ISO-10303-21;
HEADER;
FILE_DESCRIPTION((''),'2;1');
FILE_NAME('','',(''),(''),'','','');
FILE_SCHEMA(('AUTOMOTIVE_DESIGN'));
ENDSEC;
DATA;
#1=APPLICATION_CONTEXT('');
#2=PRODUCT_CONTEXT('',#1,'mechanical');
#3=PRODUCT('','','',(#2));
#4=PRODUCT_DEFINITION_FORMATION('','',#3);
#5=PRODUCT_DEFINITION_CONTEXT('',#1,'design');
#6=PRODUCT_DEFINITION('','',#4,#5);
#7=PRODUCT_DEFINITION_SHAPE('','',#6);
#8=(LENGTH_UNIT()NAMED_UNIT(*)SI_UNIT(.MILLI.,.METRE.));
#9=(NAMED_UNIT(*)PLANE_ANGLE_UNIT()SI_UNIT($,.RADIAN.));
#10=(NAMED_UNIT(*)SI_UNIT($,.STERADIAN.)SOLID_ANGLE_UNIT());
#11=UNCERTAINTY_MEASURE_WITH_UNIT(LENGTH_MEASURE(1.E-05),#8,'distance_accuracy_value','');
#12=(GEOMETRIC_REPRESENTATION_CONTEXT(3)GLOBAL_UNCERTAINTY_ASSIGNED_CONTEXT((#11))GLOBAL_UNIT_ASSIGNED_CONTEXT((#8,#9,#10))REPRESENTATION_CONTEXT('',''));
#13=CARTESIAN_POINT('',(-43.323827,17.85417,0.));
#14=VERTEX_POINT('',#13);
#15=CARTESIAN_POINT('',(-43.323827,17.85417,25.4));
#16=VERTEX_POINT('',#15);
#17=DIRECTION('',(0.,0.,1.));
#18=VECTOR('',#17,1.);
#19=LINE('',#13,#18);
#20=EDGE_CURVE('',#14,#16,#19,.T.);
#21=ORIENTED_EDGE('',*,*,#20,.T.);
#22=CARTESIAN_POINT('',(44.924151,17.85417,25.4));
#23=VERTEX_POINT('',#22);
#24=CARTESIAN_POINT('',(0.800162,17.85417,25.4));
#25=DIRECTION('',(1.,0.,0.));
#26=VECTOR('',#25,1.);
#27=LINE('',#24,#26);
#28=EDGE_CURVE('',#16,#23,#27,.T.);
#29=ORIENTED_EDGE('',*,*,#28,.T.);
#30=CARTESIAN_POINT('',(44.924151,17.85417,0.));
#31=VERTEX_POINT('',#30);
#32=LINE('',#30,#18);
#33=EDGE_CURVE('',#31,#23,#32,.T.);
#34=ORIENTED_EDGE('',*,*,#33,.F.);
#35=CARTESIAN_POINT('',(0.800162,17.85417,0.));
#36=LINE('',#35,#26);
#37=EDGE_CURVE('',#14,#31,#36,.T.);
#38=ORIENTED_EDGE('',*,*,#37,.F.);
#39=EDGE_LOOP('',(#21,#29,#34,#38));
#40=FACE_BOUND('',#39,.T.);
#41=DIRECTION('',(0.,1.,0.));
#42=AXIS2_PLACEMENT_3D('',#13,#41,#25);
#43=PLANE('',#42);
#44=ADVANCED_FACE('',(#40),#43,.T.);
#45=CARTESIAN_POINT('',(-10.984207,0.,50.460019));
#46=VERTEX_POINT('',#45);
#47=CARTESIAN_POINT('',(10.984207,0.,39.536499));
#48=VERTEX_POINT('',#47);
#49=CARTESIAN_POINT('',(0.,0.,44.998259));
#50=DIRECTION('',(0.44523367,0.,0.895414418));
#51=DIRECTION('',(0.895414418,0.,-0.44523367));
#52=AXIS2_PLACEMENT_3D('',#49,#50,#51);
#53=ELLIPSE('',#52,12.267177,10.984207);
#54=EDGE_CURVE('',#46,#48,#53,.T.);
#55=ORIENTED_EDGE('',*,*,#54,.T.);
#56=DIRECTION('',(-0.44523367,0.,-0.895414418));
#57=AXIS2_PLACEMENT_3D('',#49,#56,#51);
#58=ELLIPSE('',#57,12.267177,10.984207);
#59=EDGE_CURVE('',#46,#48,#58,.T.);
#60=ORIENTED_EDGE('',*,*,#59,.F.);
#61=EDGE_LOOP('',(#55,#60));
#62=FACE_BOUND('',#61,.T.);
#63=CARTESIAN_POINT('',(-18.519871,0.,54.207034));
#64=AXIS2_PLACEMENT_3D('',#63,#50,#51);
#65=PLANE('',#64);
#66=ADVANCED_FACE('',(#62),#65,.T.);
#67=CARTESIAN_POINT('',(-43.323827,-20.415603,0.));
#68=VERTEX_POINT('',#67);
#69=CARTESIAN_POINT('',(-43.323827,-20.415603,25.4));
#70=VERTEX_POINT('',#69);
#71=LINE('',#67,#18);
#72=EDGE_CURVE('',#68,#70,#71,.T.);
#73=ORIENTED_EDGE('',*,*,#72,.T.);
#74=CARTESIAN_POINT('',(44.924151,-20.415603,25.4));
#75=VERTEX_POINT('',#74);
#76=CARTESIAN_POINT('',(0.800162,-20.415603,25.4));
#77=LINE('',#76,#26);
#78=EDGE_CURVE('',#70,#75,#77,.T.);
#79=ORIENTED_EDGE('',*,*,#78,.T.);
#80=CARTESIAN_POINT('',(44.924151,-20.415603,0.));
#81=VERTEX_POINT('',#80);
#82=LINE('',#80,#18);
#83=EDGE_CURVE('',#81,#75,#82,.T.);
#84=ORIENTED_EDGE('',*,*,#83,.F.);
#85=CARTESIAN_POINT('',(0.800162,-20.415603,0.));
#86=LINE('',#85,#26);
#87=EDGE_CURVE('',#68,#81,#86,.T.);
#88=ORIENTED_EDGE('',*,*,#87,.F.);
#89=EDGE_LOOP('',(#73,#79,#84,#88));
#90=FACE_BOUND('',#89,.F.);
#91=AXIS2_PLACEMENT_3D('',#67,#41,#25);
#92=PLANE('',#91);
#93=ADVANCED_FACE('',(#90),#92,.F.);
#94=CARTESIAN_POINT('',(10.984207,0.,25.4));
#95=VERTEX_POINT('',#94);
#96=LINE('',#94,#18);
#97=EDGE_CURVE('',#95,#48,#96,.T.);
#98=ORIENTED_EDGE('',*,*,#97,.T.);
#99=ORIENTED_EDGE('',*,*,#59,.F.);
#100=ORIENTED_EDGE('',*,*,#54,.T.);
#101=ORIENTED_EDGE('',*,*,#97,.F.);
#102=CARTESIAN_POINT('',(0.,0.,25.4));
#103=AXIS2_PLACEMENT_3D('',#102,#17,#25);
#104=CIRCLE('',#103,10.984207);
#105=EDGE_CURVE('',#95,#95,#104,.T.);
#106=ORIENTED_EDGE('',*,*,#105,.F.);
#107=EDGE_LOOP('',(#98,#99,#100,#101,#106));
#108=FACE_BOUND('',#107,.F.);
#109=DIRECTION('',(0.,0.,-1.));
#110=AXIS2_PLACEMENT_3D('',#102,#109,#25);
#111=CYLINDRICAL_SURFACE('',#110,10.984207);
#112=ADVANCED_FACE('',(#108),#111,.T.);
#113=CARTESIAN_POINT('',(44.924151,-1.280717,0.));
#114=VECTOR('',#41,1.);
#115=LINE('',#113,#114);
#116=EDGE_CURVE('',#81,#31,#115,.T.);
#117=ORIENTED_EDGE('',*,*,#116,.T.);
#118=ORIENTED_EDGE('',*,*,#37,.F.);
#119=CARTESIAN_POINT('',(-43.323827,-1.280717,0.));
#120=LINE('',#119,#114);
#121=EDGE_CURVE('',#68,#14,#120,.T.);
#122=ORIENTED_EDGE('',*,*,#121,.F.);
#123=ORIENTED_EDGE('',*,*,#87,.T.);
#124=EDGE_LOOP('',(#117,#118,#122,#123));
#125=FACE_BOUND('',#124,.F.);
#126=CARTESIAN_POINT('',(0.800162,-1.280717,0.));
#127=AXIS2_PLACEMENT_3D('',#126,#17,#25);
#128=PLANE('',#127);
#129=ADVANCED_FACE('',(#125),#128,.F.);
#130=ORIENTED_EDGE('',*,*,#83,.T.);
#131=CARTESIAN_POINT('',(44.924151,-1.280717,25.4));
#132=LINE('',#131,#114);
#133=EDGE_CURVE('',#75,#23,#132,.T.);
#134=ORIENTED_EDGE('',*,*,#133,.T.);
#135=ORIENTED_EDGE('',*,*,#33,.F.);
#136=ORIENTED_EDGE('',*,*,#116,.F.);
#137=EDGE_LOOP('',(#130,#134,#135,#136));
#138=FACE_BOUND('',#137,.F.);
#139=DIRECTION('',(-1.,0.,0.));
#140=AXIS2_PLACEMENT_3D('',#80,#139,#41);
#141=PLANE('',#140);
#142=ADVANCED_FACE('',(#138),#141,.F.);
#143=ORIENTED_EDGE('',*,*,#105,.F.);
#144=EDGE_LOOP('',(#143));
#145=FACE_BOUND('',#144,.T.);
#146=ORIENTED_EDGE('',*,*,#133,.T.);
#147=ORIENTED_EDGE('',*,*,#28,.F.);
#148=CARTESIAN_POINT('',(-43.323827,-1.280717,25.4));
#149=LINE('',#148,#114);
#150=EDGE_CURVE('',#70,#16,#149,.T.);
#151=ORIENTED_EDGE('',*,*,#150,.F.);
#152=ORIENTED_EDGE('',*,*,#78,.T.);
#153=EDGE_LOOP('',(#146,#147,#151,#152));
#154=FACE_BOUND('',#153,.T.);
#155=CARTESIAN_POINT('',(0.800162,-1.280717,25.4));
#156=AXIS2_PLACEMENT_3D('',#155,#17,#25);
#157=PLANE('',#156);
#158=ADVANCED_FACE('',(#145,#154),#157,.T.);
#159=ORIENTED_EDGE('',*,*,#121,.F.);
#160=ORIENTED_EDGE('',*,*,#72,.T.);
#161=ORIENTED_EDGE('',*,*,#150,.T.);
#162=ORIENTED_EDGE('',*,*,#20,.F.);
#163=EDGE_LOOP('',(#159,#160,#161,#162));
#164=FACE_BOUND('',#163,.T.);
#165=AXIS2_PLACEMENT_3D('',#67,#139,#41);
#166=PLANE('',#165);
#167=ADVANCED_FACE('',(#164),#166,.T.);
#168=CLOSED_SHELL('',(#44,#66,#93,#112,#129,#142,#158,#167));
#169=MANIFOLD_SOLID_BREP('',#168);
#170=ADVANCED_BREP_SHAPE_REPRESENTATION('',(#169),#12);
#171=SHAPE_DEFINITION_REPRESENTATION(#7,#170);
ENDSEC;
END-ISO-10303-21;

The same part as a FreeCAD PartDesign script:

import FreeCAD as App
import Part
import Sketcher

V = App.Vector
Q = App.Units.Quantity

doc = App.newDocument("Part")
body = doc.addObject("PartDesign::Body", "Body")

# Sketch on XY plane
sketch1 = body.newObject("Sketcher::SketchObject", "Sketch")
sketch1.AttachmentSupport = (doc.getObject("XY_Plane"), [""])
sketch1.MapMode = "FlatFace"
sketch1.addGeometry(Part.LineSegment(V(-43, 18, 0), V(-43, -20, 0)), False)
sketch1.addGeometry(Part.LineSegment(V(-43, -20, 0), V(45, -20, 0)), False)
sketch1.addGeometry(Part.LineSegment(V(45, -20, 0), V(45, 18, 0)), False)
sketch1.addGeometry(Part.LineSegment(V(45, 18, 0), V(-43, 18, 0)), False)
sketch1.addConstraint(Sketcher.Constraint("Coincident", 0, 2, 1, 1))
sketch1.addConstraint(Sketcher.Constraint("Coincident", 1, 2, 2, 1))
sketch1.addConstraint(Sketcher.Constraint("Coincident", 2, 2, 3, 1))
sketch1.addConstraint(Sketcher.Constraint("Coincident", 3, 2, 0, 1))
sketch1.addConstraint(Sketcher.Constraint("Vertical", 0))
sketch1.addConstraint(Sketcher.Constraint("Horizontal", 1))
sketch1.addConstraint(Sketcher.Constraint("Vertical", 2))
sketch1.addConstraint(Sketcher.Constraint("Horizontal", 3))
sketch1.addConstraint(Sketcher.Constraint("DistanceX", 1, 1, 1, 2, Q("88.247977 mm")))
sketch1.addConstraint(Sketcher.Constraint("DistanceY", 0, 2, 0, 1, Q("38.269773 mm")))
sketch1.addConstraint(Sketcher.Constraint("DistanceX", -1, 1, 1, 2, Q("44.924151 mm")))
sketch1.addConstraint(Sketcher.Constraint("DistanceY", -1, 1, 2, 2, Q("17.85417 mm")))
pad1 = body.newObject("PartDesign::Pad", "Pad")
pad1.Profile = sketch1
pad1.Length = Q("1 in")

# Sketch on XY plane
sketch2 = body.newObject("Sketcher::SketchObject", "Sketch001")
sketch2.AttachmentSupport = (doc.getObject("XY_Plane"), [""])
sketch2.MapMode = "FlatFace"
sketch2.AttachmentOffset = App.Placement(V(0, 0, 1 * 25.4), App.Rotation())
sketch2.addGeometry(Part.Circle(V(0, 0, 0), V(0, 0, 1), 11), False)
sketch2.addConstraint(Sketcher.Constraint("Coincident", 0, 3, -1, 1))
sketch2.addConstraint(Sketcher.Constraint("Diameter", 0, Q("21.968414 mm")))
pad2 = body.newObject("PartDesign::Pad", "Pad001")
pad2.Profile = sketch2
pad2.Length = Q("1 in")

# Sketch on XZ plane
sketch3 = body.newObject("Sketcher::SketchObject", "Sketch002")
sketch3.AttachmentSupport = (doc.getObject("XZ_Plane"), [""])
sketch3.MapMode = "FlatFace"
sketch3.addGeometry(Part.LineSegment(V(19.1, 55.9, 0), V(-14.2, 55.9, 0)), False)
sketch3.addGeometry(Part.LineSegment(V(-14.2, 55.9, 0), V(-18.5, 54.2, 0)), False)
sketch3.addGeometry(Part.LineSegment(V(-18.5, 54.2, 0), V(19.1, 35.5, 0)), False)
sketch3.addGeometry(Part.LineSegment(V(19.1, 35.5, 0), V(19.1, 55.9, 0)), False)
sketch3.addConstraint(Sketcher.Constraint("Coincident", 0, 2, 1, 1))
sketch3.addConstraint(Sketcher.Constraint("Coincident", 1, 2, 2, 1))
sketch3.addConstraint(Sketcher.Constraint("Coincident", 2, 2, 3, 1))
sketch3.addConstraint(Sketcher.Constraint("Coincident", 3, 2, 0, 1))
sketch3.addConstraint(Sketcher.Constraint("Horizontal", 0))
sketch3.addConstraint(Sketcher.Constraint("Vertical", 3))
sketch3.addConstraint(Sketcher.Constraint("DistanceY", 3, 1, 3, 2, Q("20.392668 mm")))
sketch3.addConstraint(Sketcher.Constraint("Distance", 2, Q("42.063211 mm")))
sketch3.addConstraint(Sketcher.Constraint("DistanceX", 0, 2, 0, 1, Q("33.294148 mm")))
sketch3.addConstraint(Sketcher.Constraint("DistanceX", 1, 2, -1, 1, Q("18.519871 mm")))
sketch3.addConstraint(Sketcher.Constraint("DistanceY", 1, 2, 0, 2, Q("1.66471 mm")))
sketch3.addConstraint(Sketcher.Constraint("DistanceY", -1, 1, 0, 2, Q("55.871744 mm")))
pocket1 = body.newObject("PartDesign::Pocket", "Pocket")
pocket1.Profile = sketch3
pocket1.Length = Q("1 in")

# Sketch on XZ plane
sketch4 = body.newObject("Sketcher::SketchObject", "Sketch003")
sketch4.AttachmentSupport = (doc.getObject("XZ_Plane"), [""])
sketch4.MapMode = "FlatFace"
sketch4.addGeometry(Part.LineSegment(V(19.1, 55.9, 0), V(-14.2, 55.9, 0)), False)
sketch4.addGeometry(Part.LineSegment(V(-14.2, 55.9, 0), V(-18.5, 54.2, 0)), False)
sketch4.addGeometry(Part.LineSegment(V(-18.5, 54.2, 0), V(19.1, 35.5, 0)), False)
sketch4.addGeometry(Part.LineSegment(V(19.1, 35.5, 0), V(19.1, 55.9, 0)), False)
sketch4.addConstraint(Sketcher.Constraint("Coincident", 0, 2, 1, 1))
sketch4.addConstraint(Sketcher.Constraint("Coincident", 1, 2, 2, 1))
sketch4.addConstraint(Sketcher.Constraint("Coincident", 2, 2, 3, 1))
sketch4.addConstraint(Sketcher.Constraint("Coincident", 3, 2, 0, 1))
sketch4.addConstraint(Sketcher.Constraint("Horizontal", 0))
sketch4.addConstraint(Sketcher.Constraint("Vertical", 3))
sketch4.addConstraint(Sketcher.Constraint("DistanceY", 3, 1, 3, 2, Q("20.392668 mm")))
sketch4.addConstraint(Sketcher.Constraint("Distance", 2, Q("42.063211 mm")))
sketch4.addConstraint(Sketcher.Constraint("DistanceX", 0, 2, 0, 1, Q("33.294148 mm")))
sketch4.addConstraint(Sketcher.Constraint("DistanceX", 1, 2, -1, 1, Q("18.519871 mm")))
sketch4.addConstraint(Sketcher.Constraint("DistanceY", 1, 2, 0, 2, Q("1.66471 mm")))
sketch4.addConstraint(Sketcher.Constraint("DistanceY", -1, 1, 0, 2, Q("55.871744 mm")))
pocket2 = body.newObject("PartDesign::Pocket", "Pocket001")
pocket2.Profile = sketch4
pocket2.Length = Q("1 in")
pocket2.Reversed = True

doc.recompute()
